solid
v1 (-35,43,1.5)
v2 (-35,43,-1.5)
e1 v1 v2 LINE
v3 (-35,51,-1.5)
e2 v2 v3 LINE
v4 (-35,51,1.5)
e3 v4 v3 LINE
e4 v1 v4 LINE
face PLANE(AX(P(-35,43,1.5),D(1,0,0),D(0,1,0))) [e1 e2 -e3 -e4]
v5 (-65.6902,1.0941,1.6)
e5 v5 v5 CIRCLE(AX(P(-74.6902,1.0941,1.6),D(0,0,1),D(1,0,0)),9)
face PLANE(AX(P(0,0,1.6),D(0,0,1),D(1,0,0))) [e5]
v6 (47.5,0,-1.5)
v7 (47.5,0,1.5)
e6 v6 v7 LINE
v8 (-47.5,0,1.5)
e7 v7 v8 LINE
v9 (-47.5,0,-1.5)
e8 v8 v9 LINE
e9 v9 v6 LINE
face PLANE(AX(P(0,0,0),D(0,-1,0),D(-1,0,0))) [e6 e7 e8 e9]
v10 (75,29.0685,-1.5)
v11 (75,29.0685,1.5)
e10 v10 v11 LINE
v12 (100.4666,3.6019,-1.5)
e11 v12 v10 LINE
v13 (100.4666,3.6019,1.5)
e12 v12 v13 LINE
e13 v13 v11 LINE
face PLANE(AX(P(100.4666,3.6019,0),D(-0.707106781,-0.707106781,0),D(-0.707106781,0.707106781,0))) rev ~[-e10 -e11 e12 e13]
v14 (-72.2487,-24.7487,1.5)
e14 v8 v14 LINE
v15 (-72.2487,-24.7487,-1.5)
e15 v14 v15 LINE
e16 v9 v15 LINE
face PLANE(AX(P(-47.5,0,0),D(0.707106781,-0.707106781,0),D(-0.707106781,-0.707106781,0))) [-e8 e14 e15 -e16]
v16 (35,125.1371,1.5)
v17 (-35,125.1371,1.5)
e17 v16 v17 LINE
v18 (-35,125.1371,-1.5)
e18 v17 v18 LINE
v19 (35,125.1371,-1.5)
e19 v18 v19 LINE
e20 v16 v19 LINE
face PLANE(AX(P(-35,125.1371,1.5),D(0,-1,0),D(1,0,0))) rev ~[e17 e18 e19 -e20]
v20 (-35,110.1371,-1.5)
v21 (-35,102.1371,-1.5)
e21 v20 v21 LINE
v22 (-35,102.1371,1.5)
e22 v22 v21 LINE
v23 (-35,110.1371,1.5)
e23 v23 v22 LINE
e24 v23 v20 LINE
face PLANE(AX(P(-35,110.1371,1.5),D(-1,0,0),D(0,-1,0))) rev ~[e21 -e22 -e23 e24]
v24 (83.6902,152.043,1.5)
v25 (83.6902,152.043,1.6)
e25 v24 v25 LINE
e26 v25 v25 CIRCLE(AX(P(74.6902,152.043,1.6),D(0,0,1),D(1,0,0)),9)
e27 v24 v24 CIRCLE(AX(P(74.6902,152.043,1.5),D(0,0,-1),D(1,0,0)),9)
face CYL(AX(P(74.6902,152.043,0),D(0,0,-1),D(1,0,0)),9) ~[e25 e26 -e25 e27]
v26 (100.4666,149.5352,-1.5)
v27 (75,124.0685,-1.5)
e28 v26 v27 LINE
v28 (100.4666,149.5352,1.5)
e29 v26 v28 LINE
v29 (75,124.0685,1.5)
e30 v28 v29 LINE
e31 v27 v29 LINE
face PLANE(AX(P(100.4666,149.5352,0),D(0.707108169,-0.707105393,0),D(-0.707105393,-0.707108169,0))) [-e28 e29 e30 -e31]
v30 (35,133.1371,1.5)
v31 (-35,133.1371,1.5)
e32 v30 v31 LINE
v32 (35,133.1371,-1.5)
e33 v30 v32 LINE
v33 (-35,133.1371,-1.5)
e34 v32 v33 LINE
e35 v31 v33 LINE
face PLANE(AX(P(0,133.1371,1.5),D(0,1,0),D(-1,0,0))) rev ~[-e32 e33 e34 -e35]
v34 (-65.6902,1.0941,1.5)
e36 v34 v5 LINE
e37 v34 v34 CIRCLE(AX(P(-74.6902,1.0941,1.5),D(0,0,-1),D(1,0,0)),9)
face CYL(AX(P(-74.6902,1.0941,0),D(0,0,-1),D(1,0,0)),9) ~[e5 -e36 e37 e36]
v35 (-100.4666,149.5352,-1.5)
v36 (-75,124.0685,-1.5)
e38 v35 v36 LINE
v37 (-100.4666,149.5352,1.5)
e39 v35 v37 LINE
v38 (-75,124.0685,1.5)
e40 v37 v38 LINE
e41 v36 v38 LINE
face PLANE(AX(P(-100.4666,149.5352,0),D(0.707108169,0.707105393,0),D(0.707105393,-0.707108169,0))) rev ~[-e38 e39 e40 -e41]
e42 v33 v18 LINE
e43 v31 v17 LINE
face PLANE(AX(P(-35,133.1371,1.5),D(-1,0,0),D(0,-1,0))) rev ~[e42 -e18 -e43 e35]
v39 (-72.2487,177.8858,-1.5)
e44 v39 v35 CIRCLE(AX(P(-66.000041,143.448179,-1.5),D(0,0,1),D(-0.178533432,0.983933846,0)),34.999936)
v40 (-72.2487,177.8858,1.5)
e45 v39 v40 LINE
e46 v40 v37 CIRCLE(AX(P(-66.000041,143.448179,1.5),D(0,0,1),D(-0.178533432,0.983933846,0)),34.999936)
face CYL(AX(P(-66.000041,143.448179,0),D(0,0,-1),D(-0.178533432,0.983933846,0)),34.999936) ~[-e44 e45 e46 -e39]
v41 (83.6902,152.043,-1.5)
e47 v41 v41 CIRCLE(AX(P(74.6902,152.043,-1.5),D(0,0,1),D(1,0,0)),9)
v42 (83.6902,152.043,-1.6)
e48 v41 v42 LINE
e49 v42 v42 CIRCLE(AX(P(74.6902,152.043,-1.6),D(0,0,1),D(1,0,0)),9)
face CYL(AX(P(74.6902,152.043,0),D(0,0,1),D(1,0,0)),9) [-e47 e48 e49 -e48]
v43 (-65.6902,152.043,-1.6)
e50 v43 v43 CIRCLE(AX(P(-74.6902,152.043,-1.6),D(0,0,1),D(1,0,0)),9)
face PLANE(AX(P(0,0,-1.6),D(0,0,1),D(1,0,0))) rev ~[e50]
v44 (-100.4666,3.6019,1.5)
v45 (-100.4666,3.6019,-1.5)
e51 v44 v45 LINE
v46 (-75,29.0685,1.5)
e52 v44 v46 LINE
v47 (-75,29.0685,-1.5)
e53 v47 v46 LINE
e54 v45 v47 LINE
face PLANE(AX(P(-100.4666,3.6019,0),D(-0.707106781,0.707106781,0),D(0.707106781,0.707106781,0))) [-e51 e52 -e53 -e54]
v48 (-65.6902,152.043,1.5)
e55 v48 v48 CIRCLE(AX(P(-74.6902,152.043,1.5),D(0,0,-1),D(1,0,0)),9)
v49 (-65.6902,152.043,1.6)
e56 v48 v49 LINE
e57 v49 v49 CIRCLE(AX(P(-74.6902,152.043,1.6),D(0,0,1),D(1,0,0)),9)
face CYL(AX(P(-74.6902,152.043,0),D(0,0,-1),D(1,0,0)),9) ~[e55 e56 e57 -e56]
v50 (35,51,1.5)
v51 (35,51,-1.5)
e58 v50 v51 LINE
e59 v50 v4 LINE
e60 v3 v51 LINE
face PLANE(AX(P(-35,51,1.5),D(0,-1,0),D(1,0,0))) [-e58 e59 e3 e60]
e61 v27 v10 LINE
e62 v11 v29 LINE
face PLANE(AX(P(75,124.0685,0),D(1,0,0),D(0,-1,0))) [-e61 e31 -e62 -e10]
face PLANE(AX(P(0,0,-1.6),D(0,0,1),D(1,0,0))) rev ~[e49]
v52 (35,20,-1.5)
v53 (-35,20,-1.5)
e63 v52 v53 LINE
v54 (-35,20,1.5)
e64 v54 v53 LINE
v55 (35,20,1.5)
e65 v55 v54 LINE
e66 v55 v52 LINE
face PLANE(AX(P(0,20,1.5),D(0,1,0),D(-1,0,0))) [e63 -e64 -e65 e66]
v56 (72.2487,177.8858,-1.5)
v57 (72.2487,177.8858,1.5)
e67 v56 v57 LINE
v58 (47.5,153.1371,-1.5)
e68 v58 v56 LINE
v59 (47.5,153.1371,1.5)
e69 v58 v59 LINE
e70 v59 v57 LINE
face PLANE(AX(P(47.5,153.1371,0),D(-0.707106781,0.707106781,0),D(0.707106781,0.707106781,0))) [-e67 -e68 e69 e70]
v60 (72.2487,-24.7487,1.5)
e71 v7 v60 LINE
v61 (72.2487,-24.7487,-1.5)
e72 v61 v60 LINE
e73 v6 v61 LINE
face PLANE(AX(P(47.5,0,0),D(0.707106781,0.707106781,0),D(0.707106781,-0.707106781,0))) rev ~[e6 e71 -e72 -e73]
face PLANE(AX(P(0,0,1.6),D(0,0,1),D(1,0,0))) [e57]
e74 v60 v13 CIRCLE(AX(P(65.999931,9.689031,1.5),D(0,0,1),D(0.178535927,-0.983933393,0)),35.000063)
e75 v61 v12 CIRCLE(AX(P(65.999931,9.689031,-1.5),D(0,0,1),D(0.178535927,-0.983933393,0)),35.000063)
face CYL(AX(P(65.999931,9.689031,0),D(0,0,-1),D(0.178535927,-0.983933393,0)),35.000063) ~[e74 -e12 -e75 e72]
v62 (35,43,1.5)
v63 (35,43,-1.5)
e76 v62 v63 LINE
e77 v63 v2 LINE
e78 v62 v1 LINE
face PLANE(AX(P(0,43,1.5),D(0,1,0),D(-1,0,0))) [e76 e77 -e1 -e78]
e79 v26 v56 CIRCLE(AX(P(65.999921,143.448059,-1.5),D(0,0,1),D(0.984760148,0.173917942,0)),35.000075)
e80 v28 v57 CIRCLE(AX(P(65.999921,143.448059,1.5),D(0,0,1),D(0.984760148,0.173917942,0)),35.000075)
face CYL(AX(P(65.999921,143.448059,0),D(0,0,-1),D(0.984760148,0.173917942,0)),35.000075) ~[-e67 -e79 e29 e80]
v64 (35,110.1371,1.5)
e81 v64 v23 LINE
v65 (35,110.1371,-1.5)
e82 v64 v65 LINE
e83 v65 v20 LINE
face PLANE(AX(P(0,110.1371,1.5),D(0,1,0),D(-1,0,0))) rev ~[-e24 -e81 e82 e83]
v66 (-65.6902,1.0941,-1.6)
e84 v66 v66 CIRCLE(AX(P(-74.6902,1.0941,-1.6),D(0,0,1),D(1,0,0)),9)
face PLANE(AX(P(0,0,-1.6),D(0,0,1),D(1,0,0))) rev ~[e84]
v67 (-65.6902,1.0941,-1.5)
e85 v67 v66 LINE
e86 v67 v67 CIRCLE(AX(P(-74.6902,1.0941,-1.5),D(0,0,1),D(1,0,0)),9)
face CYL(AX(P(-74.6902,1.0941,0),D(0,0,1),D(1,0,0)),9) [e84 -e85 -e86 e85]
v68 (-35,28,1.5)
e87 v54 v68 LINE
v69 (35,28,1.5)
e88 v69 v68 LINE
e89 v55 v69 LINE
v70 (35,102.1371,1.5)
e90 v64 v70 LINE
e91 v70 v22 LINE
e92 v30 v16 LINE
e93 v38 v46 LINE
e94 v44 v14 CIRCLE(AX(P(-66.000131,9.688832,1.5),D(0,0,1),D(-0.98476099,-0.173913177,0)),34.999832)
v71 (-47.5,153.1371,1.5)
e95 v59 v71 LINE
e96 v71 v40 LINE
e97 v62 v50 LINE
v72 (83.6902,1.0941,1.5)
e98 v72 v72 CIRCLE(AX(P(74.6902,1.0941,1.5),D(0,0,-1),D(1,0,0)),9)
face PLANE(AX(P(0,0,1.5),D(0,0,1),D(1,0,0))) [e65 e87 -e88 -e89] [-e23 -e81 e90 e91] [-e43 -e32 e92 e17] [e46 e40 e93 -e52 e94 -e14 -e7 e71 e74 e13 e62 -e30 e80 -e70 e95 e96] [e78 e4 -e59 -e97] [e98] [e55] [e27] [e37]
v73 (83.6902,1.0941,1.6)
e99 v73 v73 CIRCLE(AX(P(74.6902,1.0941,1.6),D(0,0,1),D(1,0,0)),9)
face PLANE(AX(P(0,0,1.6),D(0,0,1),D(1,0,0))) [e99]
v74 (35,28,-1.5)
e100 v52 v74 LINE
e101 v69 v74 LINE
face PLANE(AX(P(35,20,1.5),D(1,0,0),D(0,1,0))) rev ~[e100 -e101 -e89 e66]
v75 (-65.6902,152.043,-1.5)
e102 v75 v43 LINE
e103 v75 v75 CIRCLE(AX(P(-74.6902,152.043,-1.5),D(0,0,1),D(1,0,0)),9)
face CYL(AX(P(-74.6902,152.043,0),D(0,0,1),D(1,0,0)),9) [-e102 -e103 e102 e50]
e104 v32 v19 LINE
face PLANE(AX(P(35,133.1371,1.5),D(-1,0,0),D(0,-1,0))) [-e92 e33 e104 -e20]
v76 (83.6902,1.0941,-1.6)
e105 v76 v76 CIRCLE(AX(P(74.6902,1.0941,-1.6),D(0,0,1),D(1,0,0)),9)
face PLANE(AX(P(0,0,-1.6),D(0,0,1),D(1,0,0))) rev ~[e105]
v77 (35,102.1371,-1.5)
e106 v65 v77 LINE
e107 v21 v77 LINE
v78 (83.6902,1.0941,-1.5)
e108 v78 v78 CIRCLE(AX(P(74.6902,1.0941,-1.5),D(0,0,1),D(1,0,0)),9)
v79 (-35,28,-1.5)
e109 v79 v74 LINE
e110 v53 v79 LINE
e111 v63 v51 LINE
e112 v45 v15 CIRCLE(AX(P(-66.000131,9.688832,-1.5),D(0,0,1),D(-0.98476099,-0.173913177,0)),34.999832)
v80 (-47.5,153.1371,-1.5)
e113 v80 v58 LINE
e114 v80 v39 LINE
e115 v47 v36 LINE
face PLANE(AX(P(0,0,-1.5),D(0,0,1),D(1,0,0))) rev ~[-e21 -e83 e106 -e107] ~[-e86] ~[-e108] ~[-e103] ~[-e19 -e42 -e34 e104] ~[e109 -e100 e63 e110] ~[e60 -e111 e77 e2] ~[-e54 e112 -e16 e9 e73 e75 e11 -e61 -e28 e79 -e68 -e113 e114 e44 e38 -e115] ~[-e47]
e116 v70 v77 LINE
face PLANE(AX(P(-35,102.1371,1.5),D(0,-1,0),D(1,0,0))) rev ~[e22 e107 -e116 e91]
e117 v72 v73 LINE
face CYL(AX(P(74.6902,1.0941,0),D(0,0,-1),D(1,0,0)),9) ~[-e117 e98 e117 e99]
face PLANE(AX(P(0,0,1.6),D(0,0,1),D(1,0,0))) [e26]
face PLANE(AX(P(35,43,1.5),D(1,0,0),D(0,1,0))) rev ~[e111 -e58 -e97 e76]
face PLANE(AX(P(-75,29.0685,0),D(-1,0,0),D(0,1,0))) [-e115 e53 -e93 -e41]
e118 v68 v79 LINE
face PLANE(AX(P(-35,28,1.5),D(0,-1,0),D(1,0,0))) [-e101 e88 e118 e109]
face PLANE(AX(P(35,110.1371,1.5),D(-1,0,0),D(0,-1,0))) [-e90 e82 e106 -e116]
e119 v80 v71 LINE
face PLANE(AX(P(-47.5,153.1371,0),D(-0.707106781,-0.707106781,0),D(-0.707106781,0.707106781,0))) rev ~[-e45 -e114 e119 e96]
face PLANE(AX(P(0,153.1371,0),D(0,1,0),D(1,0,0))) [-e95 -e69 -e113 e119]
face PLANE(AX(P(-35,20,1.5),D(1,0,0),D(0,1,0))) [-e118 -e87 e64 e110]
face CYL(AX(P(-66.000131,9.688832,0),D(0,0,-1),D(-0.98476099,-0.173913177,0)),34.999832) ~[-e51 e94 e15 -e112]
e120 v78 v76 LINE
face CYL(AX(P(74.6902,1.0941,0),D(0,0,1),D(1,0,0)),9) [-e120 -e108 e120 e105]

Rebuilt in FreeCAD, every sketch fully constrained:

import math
import FreeCAD as App
import Part
import Sketcher
from FreeCAD import Vector


def add_polygon(sketch, points):
    """Adds a closed chain of lines whose ends are joined by coincident constraints."""
    first, n = sketch.GeometryCount, len(points)
    for a, b in zip(points, points[1:] + points[:1]):
        sketch.addGeometry(Part.LineSegment(App.Vector(*a, 0), App.Vector(*b, 0)), False)
    for i in range(n):
        sketch.addConstraint(Sketcher.Constraint("Coincident", first + i, 2, first + (i + 1) % n, 1))

doc = App.newDocument("Part")
body = doc.addObject("PartDesign::Body", "Body")

sketch1 = body.newObject("Sketcher::SketchObject", "Sketch")
sketch1.AttachmentSupport = (doc.getObject("XY_Plane"), [""])
sketch1.MapMode = "FlatFace"
sketch1.addGeometry([
    Part.LineSegment(Vector(-48, 0, 0), Vector(48, 0, 0)),
    Part.LineSegment(Vector(48, 0, 0), Vector(72, -25, 0)),
    Part.ArcOfCircle(Part.Circle(Vector(66, 10, 0), Vector(0, 0, 1), 35), math.radians(-80), math.radians(-10)),
    Part.LineSegment(Vector(100, 4, 0), Vector(75, 29, 0)),
    Part.LineSegment(Vector(75, 29, 0), Vector(75, 124, 0)),
    Part.LineSegment(Vector(75, 124, 0), Vector(100, 150, 0)),
    Part.ArcOfCircle(Part.Circle(Vector(66, 143, 0), Vector(0, 0, 1), 35), math.radians(10), math.radians(80)),
    Part.LineSegment(Vector(72, 178, 0), Vector(48, 153, 0)),
    Part.LineSegment(Vector(48, 153, 0), Vector(-48, 153, 0)),
    Part.LineSegment(Vector(-48, 153, 0), Vector(-72, 178, 0)),
    Part.ArcOfCircle(Part.Circle(Vector(-66, 143, 0), Vector(0, 0, 1), 35), math.radians(100), math.radians(170)),
    Part.LineSegment(Vector(-100, 150, 0), Vector(-75, 124, 0)),
    Part.LineSegment(Vector(-75, 124, 0), Vector(-75, 29, 0)),
    Part.LineSegment(Vector(-75, 29, 0), Vector(-100, 4, 0)),
    Part.ArcOfCircle(Part.Circle(Vector(-66, 10, 0), Vector(0, 0, 1), 35), math.radians(-170), math.radians(-100)),
    Part.LineSegment(Vector(-72, -25, 0), Vector(-48, 0, 0)),
], False)
sketch1.addConstraint([
    Sketcher.Constraint("Coincident", 0, 2, 1, 1),
    Sketcher.Constraint("Coincident", 1, 2, 2, 1),
    Sketcher.Constraint("Coincident", 2, 2, 3, 1),
    Sketcher.Constraint("Coincident", 3, 2, 4, 1),
    Sketcher.Constraint("Coincident", 4, 2, 5, 1),
    Sketcher.Constraint("Coincident", 5, 2, 6, 1),
    Sketcher.Constraint("Coincident", 6, 2, 7, 1),
    Sketcher.Constraint("Coincident", 7, 2, 8, 1),
    Sketcher.Constraint("Coincident", 8, 2, 9, 1),
    Sketcher.Constraint("Coincident", 9, 2, 10, 1),
    Sketcher.Constraint("Coincident", 10, 2, 11, 1),
    Sketcher.Constraint("Coincident", 11, 2, 12, 1),
    Sketcher.Constraint("Coincident", 12, 2, 13, 1),
    Sketcher.Constraint("Coincident", 13, 2, 14, 1),
    Sketcher.Constraint("Coincident", 14, 2, 15, 1),
    Sketcher.Constraint("Coincident", 15, 2, 0, 1),
    Sketcher.Constraint("Horizontal", 0),
    Sketcher.Constraint("Vertical", 4),
    Sketcher.Constraint("Horizontal", 8),
    Sketcher.Constraint("Vertical", 12),
    Sketcher.Constraint("Equal", 2, 6),
    Sketcher.Constraint("Equal", 6, 10),
    Sketcher.Constraint("Equal", 10, 14),
    Sketcher.Constraint("Symmetric", 0, 2, 15, 2, -1, 1),
    Sketcher.Constraint("Symmetric", 6, 3, 10, 3, -2),
    Sketcher.Constraint("Symmetric", 2, 3, 14, 3, -2),
    Sketcher.Constraint("Symmetric", 4, 2, 11, 2, -2),
    Sketcher.Constraint("Parallel", 1, 3),
    Sketcher.Constraint("Perpendicular", 3, 5),
    Sketcher.Constraint("Parallel", 5, 7),
    Sketcher.Constraint("Perpendicular", 7, 9),
    Sketcher.Constraint("Parallel", 9, 11),
    Sketcher.Constraint("Perpendicular", 11, 13),
    Sketcher.Constraint("Parallel", 13, 15),
    Sketcher.Constraint("Horizontal", 6, 2, 9, 2),
    Sketcher.Constraint("Horizontal", 5, 2, 10, 2),
    Sketcher.Constraint("Horizontal", 3, 2, 12, 2),
    Sketcher.Constraint("Vertical", 2, 3, 6, 3),
    Sketcher.Constraint("Vertical", 2, 2, 5, 2),
    Sketcher.Constraint("Vertical", 1, 2, 6, 2),
    Sketcher.Constraint("Vertical", 0, 2, 7, 2),
    Sketcher.Constraint("Equal", 8, 4),
    Sketcher.Constraint("Radius", 2, 35.0),
    Sketcher.Constraint("Distance", 1, 35.0),
    Sketcher.Constraint("DistanceX", -1, 1, 2, 3, 66.0),
    Sketcher.Constraint("DistanceX", -1, 1, 3, 2, 75.0),
    Sketcher.Constraint("DistanceX", -1, 1, 0, 2, 47.5),
    Sketcher.Constraint("DistanceY", -1, 1, 6, 3, 143.448),
])
pad1 = body.newObject("PartDesign::Pad", "Pad")
pad1.Profile = sketch1
pad1.Type = "TwoLengths"
pad1.Length = 1.5
pad1.Length2 = 1.5

sketch2 = body.newObject("Sketcher::SketchObject", "Sketch001")
sketch2.AttachmentSupport = (doc.getObject("XY_Plane"), [""])
sketch2.MapMode = "FlatFace"
sketch2.addGeometry([
    Part.Circle(Vector(-75, 1, 0), Vector(0, 0, 1), 9),
    Part.Circle(Vector(-75, 152, 0), Vector(0, 0, 1), 9),
    Part.Circle(Vector(75, 1, 0), Vector(0, 0, 1), 9),
    Part.Circle(Vector(75, 152, 0), Vector(0, 0, 1), 9),
], False)
sketch2.addConstraint([
    Sketcher.Constraint("Equal", 0, 1),
    Sketcher.Constraint("Equal", 1, 2),
    Sketcher.Constraint("Equal", 2, 3),
    Sketcher.Constraint("Symmetric", 0, 3, 2, 3, -2),
    Sketcher.Constraint("Symmetric", 1, 3, 3, 3, -2),
    Sketcher.Constraint("Vertical", 0, 3, 1, 3),
    Sketcher.Constraint("Diameter", 0, 18.0),
    Sketcher.Constraint("DistanceY", -1, 1, 0, 3, 1.094),
    Sketcher.Constraint("DistanceY", -1, 1, 1, 3, 152.043),
    Sketcher.Constraint("DistanceX", 0, 3, -1, 1, 74.6902),
])
pad2 = body.newObject("PartDesign::Pad", "Pad001")
pad2.Profile = sketch2
pad2.Length = 3.2
pad2.Midplane = True

sketch3 = body.newObject("Sketcher::SketchObject", "Sketch002")
sketch3.AttachmentSupport = (doc.getObject("XY_Plane"), [""])
sketch3.MapMode = "FlatFace"
sketch3.AttachmentOffset = App.Placement(Vector(0, 0, 1.5), App.Rotation())
add_polygon(sketch3, [(-35, 125), (35, 125), (35, 133), (-35, 133)])
add_polygon(sketch3, [(-35, 102), (35, 102), (35, 110), (-35, 110)])
add_polygon(sketch3, [(-35, 43), (35, 43), (35, 51), (-35, 51)])
add_polygon(sketch3, [(-35, 20), (35, 20), (35, 28), (-35, 28)])
sketch3.addConstraint([
    Sketcher.Constraint("Horizontal", 0),
    Sketcher.Constraint("Vertical", 1),
    Sketcher.Constraint("Horizontal", 2),
    Sketcher.Constraint("Vertical", 3),
    Sketcher.Constraint("Horizontal", 4),
    Sketcher.Constraint("Vertical", 5),
    Sketcher.Constraint("Horizontal", 6),
    Sketcher.Constraint("Vertical", 7),
    Sketcher.Constraint("Horizontal", 8),
    Sketcher.Constraint("Vertical", 9),
    Sketcher.Constraint("Horizontal", 10),
    Sketcher.Constraint("Vertical", 11),
    Sketcher.Constraint("Horizontal", 12),
    Sketcher.Constraint("Vertical", 13),
    Sketcher.Constraint("Horizontal", 14),
    Sketcher.Constraint("Vertical", 15),
    Sketcher.Constraint("Vertical", 1, 2, 4, 2),
    Sketcher.Constraint("Vertical", 3, 2, 6, 2),
    Sketcher.Constraint("Vertical", 5, 2, 8, 2),
    Sketcher.Constraint("Vertical", 7, 2, 10, 2),
    Sketcher.Constraint("Vertical", 9, 2, 12, 2),
    Sketcher.Constraint("Vertical", 11, 2, 14, 2),
    Sketcher.Constraint("Equal", 3, 5),
    Sketcher.Constraint("Equal", 7, 9),
    Sketcher.Constraint("Equal", 11, 13),
    Sketcher.Constraint("DistanceY", 1, 1, 1, 2, 8.0),
    Sketcher.Constraint("DistanceX", -1, 1, 0, 2, 35.0),
    Sketcher.Constraint("DistanceX", 2, 2, -1, 1, 35.0),
    Sketcher.Constraint("DistanceY", -1, 1, 12, 2, 20.0),
    Sketcher.Constraint("DistanceY", 5, 2, 0, 2, 15.0),
    Sketcher.Constraint("DistanceY", 13, 2, 8, 2, 15.0),
    Sketcher.Constraint("DistanceY", -1, 1, 0, 2, 125.137),
])
pocket1 = body.newObject("PartDesign::Pocket", "Pocket")
pocket1.Profile = sketch3
pocket1.Length = 10

doc.recompute()
